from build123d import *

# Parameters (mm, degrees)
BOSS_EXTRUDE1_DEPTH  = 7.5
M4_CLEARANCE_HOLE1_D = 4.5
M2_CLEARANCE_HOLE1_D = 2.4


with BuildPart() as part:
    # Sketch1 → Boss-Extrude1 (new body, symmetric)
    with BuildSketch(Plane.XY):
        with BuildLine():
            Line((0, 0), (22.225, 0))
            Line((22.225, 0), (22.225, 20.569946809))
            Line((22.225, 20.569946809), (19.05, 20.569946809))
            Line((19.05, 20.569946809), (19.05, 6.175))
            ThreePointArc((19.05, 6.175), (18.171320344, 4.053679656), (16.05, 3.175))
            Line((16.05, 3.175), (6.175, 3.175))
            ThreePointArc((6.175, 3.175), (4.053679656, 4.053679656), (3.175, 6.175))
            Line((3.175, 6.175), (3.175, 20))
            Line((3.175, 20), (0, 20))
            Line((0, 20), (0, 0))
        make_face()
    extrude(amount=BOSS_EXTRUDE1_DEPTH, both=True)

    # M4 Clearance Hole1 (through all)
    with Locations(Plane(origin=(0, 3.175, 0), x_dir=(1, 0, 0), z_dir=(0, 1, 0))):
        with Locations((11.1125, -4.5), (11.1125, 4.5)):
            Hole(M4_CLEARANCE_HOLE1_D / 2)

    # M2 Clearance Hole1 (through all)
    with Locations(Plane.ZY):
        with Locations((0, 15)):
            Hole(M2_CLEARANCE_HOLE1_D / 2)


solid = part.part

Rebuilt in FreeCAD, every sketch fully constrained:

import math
import FreeCAD as App
import Part
import Sketcher

doc = App.newDocument("Part")
body = doc.addObject("PartDesign::Body", "Body")

sketch1 = doc.addObject("Sketcher::SketchObject", "Sketch")
body.addObject(sketch1)
sketch1.AttachmentSupport = (doc.XY_Plane, [""])
sketch1.MapMode = "FlatFace"
sketch1.addGeometry(Part.LineSegment(App.Vector(0, 0, 0), App.Vector(22.2, 0, 0)), False)
sketch1.addGeometry(Part.LineSegment(App.Vector(22.2, 0, 0), App.Vector(22.2, 20.6, 0)), False)
sketch1.addGeometry(Part.LineSegment(App.Vector(22.2, 20.6, 0), App.Vector(19.1, 20.6, 0)), False)
sketch1.addGeometry(Part.LineSegment(App.Vector(19.1, 20.6, 0), App.Vector(19.1, 6.2, 0)), False)
sketch1.addGeometry(Part.ArcOfCircle(Part.Circle(App.Vector(16.1, 6.2, 0), App.Vector(0, 0, 1), 3), math.radians(-90), math.radians(0)), False)
sketch1.addGeometry(Part.LineSegment(App.Vector(16.1, 3.2, 0), App.Vector(6.2, 3.2, 0)), False)
sketch1.addGeometry(Part.ArcOfCircle(Part.Circle(App.Vector(6.2, 6.2, 0), App.Vector(0, 0, 1), 3), math.radians(180), math.radians(270)), False)
sketch1.addGeometry(Part.LineSegment(App.Vector(3.2, 6.2, 0), App.Vector(3.2, 20, 0)), False)
sketch1.addGeometry(Part.LineSegment(App.Vector(3.2, 20, 0), App.Vector(0, 20, 0)), False)
sketch1.addGeometry(Part.LineSegment(App.Vector(0, 20, 0), App.Vector(0, 0, 0)), False)
sketch1.addConstraint(Sketcher.Constraint("Coincident", 0, 2, 1, 1))
sketch1.addConstraint(Sketcher.Constraint("Coincident", 1, 2, 2, 1))
sketch1.addConstraint(Sketcher.Constraint("Coincident", 2, 2, 3, 1))
sketch1.addConstraint(Sketcher.Constraint("Tangent", 3, 2, 4, 2))
sketch1.addConstraint(Sketcher.Constraint("Tangent", 4, 1, 5, 1))
sketch1.addConstraint(Sketcher.Constraint("Tangent", 5, 2, 6, 2))
sketch1.addConstraint(Sketcher.Constraint("Tangent", 6, 1, 7, 1))
sketch1.addConstraint(Sketcher.Constraint("Coincident", 7, 2, 8, 1))
sketch1.addConstraint(Sketcher.Constraint("Coincident", 8, 2, 9, 1))
sketch1.addConstraint(Sketcher.Constraint("Coincident", 9, 2, 0, 1))
sketch1.addConstraint(Sketcher.Constraint("Horizontal", 0))
sketch1.addConstraint(Sketcher.Constraint("Vertical", 1))
sketch1.addConstraint(Sketcher.Constraint("Horizontal", 2))
sketch1.addConstraint(Sketcher.Constraint("Vertical", 3))
sketch1.addConstraint(Sketcher.Constraint("Horizontal", 5))
sketch1.addConstraint(Sketcher.Constraint("Vertical", 7))
sketch1.addConstraint(Sketcher.Constraint("Horizontal", 8))
sketch1.addConstraint(Sketcher.Constraint("Vertical", 9))
sketch1.addConstraint(Sketcher.Constraint("Coincident", 9, 2, -1, 1))
sketch1.addConstraint(Sketcher.Constraint("Equal", 4, 6))
sketch1.addConstraint(Sketcher.Constraint("Equal", 2, 8))
sketch1.addConstraint(Sketcher.Constraint("Radius", 4, 3.0))
sketch1.addConstraint(Sketcher.Constraint("DistanceY", 9, 2, 9, 1, 20.0))
sketch1.addConstraint(Sketcher.Constraint("DistanceX", 0, 1, 0, 2, 22.225))
sketch1.addConstraint(Sketcher.Constraint("DistanceX", 2, 2, 2, 1, 3.175))
sketch1.addConstraint(Sketcher.Constraint("DistanceY", 7, 1, 7, 2, 13.825))
sketch1.addConstraint(Sketcher.Constraint("DistanceY", 1, 1, 1, 2, 20.569947))
pad1 = doc.addObject("PartDesign::Pad", "Pad")
body.addObject(pad1)
pad1.Profile = sketch1
pad1.Length = 15
pad1.Midplane = True

sketch2 = doc.addObject("Sketcher::SketchObject", "Sketch001")
body.addObject(sketch2)
sketch2.AttachmentSupport = (doc.XZ_Plane, [""])
sketch2.MapMode = "FlatFace"
sketch2.AttachmentOffset = App.Placement(App.Vector(0, 0, -3.175), App.Rotation())
sketch2.addGeometry(Part.Circle(App.Vector(11.1, 4.5, 0), App.Vector(0, 0, 1), 2.2), False)
sketch2.addGeometry(Part.Circle(App.Vector(11.1, -4.5, 0), App.Vector(0, 0, 1), 2.2), False)
sketch2.addConstraint(Sketcher.Constraint("Equal", 0, 1))
sketch2.addConstraint(Sketcher.Constraint("Symmetric", 0, 3, 1, 3, -1))
sketch2.addConstraint(Sketcher.Constraint("Diameter", 0, 4.5))
sketch2.addConstraint(Sketcher.Constraint("DistanceY", 1, 3, 0, 3, 9.0))
sketch2.addConstraint(Sketcher.Constraint("DistanceX", -1, 1, 0, 3, 11.1125))
doc.recompute()
hole = doc.addObject("PartDesign::Hole", "Hole")
body.addObject(hole)
hole.Profile = sketch2
hole.ThreadType = "None"
hole.Diameter = 4.5
hole.DepthType = "ThroughAll"
hole.Reversed = True

sketch3 = doc.addObject("Sketcher::SketchObject", "Sketch002")
body.addObject(sketch3)
sketch3.AttachmentSupport = (doc.YZ_Plane, [""])
sketch3.MapMode = "FlatFace"
sketch3.addGeometry(Part.Circle(App.Vector(15, 0, 0), App.Vector(0, 0, 1), 1.2), False)
sketch3.addConstraint(Sketcher.Constraint("PointOnObject", 0, 3, -1))
sketch3.addConstraint(Sketcher.Constraint("Diameter", 0, 2.4))
sketch3.addConstraint(Sketcher.Constraint("DistanceX", -1, 1, 0, 3, 15.0))
doc.recompute()
hole2 = doc.addObject("PartDesign::Hole", "Hole001")
body.addObject(hole2)
hole2.Profile = sketch3
hole2.ThreadType = "None"
hole2.Diameter = 2.4
hole2.DepthType = "ThroughAll"
hole2.Reversed = True

doc.recompute()
